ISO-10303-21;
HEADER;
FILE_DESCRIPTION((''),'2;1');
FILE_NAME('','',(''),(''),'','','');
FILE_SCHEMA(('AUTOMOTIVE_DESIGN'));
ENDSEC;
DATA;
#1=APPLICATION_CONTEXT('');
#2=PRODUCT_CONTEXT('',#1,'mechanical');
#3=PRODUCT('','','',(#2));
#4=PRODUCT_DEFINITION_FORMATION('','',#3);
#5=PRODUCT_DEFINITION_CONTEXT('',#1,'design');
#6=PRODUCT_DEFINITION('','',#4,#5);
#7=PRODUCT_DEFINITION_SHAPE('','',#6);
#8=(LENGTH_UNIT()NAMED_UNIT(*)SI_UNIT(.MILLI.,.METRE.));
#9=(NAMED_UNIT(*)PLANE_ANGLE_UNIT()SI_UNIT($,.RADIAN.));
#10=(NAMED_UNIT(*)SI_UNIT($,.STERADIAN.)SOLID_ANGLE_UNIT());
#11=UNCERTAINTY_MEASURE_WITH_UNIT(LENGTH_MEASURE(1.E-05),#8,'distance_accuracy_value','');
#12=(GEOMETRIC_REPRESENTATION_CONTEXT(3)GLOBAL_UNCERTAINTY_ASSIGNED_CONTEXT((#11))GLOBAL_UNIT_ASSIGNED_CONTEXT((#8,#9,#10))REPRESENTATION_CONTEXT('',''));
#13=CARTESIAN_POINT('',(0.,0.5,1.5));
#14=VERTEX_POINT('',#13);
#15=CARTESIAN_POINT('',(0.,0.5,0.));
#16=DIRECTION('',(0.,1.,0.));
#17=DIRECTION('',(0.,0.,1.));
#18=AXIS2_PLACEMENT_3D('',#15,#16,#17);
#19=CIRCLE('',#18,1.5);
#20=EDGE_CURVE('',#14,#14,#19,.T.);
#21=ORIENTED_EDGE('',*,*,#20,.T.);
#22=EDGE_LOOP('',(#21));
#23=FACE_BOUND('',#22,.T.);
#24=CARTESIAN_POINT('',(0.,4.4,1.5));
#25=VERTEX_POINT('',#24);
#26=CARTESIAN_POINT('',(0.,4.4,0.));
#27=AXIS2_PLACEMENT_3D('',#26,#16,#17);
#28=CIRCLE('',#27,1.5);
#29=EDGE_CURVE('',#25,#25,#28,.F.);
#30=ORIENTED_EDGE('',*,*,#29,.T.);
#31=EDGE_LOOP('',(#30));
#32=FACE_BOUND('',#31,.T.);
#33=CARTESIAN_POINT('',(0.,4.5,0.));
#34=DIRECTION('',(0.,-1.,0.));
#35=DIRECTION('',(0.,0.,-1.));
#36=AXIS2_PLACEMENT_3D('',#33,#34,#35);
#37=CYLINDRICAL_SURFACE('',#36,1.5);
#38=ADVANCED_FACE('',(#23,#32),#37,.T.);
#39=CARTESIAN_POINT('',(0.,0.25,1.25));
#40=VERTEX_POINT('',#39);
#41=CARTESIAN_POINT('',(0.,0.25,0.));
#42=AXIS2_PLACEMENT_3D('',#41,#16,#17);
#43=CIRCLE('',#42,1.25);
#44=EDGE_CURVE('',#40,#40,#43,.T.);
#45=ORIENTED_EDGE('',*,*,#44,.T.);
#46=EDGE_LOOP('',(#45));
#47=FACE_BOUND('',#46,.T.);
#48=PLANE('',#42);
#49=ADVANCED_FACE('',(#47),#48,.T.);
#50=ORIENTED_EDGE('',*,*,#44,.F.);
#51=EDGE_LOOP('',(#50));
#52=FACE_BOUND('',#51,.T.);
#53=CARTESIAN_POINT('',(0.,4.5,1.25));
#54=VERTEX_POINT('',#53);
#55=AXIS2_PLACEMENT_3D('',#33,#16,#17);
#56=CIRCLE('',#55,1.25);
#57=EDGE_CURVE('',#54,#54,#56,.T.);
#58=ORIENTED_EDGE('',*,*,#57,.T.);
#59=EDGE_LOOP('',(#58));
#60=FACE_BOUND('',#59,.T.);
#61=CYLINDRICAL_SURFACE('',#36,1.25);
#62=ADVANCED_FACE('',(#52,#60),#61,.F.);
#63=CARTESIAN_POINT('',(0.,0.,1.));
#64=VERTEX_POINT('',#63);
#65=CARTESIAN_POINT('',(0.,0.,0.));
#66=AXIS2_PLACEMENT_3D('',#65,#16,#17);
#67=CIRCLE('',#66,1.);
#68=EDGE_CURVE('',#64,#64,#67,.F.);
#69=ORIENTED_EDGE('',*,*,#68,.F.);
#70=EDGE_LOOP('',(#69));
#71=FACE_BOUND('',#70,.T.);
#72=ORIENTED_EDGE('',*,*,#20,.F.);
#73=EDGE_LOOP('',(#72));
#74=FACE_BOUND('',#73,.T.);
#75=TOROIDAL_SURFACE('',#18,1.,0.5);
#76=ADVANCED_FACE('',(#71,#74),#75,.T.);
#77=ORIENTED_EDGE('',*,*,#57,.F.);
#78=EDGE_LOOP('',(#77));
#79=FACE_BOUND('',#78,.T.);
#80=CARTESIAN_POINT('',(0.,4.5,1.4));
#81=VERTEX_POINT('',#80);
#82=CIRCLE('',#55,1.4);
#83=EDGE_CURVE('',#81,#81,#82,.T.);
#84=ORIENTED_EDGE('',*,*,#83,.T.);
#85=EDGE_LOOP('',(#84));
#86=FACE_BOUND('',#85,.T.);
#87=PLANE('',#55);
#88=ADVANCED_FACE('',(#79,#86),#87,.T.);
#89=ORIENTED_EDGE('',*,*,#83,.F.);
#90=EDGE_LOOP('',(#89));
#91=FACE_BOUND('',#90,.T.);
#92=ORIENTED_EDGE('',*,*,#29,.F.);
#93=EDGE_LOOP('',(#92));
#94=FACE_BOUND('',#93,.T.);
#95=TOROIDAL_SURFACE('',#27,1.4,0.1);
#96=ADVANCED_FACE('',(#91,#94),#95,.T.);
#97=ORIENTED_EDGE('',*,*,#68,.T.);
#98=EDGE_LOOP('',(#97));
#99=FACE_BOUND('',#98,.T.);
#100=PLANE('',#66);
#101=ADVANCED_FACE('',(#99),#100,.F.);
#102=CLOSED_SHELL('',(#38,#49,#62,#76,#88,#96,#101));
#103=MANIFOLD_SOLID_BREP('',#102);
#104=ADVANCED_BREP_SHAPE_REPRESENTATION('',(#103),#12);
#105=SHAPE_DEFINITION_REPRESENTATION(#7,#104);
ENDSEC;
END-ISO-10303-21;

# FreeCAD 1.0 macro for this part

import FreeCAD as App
import Part
import Sketcher


def edges_at(feature, points):
    """Names of the edges that pass closest to the given points."""
    edges = feature.Shape.Edges
    near = lambda p: min(range(len(edges)), key=lambda i: edges[i].distToShape(Part.Vertex(*p))[0])
    return sorted({f"Edge{near(p) + 1}" for p in points})


def faces_at(feature, points):
    """Names of the faces that lie closest to the given points."""
    faces = feature.Shape.Faces
    near = lambda p: min(range(len(faces)), key=lambda i: faces[i].distToShape(Part.Vertex(*p))[0])
    return sorted({f"Face{near(p) + 1}" for p in points})

doc = App.newDocument("Part")
params = doc.addObject("Spreadsheet::Sheet", "Params")
for row, (alias, value) in enumerate([
    ("sketch1_diameter", "3 mm"),
    ("pad1_length", "4.5 mm"),
    ("thickness_wall", "0.25 mm"),
    ("fillet_radius", "0.1 mm"),
    ("fillet2_radius", "0.5 mm"),
], start=1):
    params.set(f"A{row}", alias)
    params.set(f"B{row}", "=" + value)
    params.setAlias(f"B{row}", alias)

body = doc.addObject("PartDesign::Body", "Body")

# Sketch on XZ plane
sketch1 = body.newObject("Sketcher::SketchObject", "Sketch")
sketch1.AttachmentSupport = (doc.getObject("XZ_Plane"), [""])
sketch1.MapMode = "FlatFace"
sketch1.addGeometry(Part.Circle(App.Vector(0, 0, 0), App.Vector(0, 0, 1), 1.5), False)
sketch1.addConstraint([
    Sketcher.Constraint("Coincident", 0, 3, -1, 1),
    Sketcher.Constraint("Diameter", 0, 3.0),
])
sketch1.setExpression("Constraints[1]", "Params.sketch1_diameter")
pad1 = body.newObject("PartDesign::Pad", "Pad")
pad1.Profile = sketch1
pad1.setExpression("Length", "Params.pad1_length")
pad1.Reversed = True
doc.recompute()

thickness = body.newObject("PartDesign::Thickness", "Thickness")
thickness.Base = (pad1, faces_at(pad1, [(0, 4.5, 0)]))
thickness.setExpression("Value", "Params.thickness_wall")
thickness.Reversed = True
thickness.Join = "Intersection"
doc.recompute()

fillet = body.newObject("PartDesign::Fillet", "Fillet")
fillet.Base = (thickness, edges_at(thickness, [(0, 4.5, -1.5)]))
fillet.setExpression("Radius", "Params.fillet_radius")
doc.recompute()

fillet2 = body.newObject("PartDesign::Fillet", "Fillet001")
fillet2.Base = (fillet, edges_at(fillet, [(0, 0, -1.5)]))
fillet2.setExpression("Radius", "Params.fillet2_radius")

doc.recompute()
